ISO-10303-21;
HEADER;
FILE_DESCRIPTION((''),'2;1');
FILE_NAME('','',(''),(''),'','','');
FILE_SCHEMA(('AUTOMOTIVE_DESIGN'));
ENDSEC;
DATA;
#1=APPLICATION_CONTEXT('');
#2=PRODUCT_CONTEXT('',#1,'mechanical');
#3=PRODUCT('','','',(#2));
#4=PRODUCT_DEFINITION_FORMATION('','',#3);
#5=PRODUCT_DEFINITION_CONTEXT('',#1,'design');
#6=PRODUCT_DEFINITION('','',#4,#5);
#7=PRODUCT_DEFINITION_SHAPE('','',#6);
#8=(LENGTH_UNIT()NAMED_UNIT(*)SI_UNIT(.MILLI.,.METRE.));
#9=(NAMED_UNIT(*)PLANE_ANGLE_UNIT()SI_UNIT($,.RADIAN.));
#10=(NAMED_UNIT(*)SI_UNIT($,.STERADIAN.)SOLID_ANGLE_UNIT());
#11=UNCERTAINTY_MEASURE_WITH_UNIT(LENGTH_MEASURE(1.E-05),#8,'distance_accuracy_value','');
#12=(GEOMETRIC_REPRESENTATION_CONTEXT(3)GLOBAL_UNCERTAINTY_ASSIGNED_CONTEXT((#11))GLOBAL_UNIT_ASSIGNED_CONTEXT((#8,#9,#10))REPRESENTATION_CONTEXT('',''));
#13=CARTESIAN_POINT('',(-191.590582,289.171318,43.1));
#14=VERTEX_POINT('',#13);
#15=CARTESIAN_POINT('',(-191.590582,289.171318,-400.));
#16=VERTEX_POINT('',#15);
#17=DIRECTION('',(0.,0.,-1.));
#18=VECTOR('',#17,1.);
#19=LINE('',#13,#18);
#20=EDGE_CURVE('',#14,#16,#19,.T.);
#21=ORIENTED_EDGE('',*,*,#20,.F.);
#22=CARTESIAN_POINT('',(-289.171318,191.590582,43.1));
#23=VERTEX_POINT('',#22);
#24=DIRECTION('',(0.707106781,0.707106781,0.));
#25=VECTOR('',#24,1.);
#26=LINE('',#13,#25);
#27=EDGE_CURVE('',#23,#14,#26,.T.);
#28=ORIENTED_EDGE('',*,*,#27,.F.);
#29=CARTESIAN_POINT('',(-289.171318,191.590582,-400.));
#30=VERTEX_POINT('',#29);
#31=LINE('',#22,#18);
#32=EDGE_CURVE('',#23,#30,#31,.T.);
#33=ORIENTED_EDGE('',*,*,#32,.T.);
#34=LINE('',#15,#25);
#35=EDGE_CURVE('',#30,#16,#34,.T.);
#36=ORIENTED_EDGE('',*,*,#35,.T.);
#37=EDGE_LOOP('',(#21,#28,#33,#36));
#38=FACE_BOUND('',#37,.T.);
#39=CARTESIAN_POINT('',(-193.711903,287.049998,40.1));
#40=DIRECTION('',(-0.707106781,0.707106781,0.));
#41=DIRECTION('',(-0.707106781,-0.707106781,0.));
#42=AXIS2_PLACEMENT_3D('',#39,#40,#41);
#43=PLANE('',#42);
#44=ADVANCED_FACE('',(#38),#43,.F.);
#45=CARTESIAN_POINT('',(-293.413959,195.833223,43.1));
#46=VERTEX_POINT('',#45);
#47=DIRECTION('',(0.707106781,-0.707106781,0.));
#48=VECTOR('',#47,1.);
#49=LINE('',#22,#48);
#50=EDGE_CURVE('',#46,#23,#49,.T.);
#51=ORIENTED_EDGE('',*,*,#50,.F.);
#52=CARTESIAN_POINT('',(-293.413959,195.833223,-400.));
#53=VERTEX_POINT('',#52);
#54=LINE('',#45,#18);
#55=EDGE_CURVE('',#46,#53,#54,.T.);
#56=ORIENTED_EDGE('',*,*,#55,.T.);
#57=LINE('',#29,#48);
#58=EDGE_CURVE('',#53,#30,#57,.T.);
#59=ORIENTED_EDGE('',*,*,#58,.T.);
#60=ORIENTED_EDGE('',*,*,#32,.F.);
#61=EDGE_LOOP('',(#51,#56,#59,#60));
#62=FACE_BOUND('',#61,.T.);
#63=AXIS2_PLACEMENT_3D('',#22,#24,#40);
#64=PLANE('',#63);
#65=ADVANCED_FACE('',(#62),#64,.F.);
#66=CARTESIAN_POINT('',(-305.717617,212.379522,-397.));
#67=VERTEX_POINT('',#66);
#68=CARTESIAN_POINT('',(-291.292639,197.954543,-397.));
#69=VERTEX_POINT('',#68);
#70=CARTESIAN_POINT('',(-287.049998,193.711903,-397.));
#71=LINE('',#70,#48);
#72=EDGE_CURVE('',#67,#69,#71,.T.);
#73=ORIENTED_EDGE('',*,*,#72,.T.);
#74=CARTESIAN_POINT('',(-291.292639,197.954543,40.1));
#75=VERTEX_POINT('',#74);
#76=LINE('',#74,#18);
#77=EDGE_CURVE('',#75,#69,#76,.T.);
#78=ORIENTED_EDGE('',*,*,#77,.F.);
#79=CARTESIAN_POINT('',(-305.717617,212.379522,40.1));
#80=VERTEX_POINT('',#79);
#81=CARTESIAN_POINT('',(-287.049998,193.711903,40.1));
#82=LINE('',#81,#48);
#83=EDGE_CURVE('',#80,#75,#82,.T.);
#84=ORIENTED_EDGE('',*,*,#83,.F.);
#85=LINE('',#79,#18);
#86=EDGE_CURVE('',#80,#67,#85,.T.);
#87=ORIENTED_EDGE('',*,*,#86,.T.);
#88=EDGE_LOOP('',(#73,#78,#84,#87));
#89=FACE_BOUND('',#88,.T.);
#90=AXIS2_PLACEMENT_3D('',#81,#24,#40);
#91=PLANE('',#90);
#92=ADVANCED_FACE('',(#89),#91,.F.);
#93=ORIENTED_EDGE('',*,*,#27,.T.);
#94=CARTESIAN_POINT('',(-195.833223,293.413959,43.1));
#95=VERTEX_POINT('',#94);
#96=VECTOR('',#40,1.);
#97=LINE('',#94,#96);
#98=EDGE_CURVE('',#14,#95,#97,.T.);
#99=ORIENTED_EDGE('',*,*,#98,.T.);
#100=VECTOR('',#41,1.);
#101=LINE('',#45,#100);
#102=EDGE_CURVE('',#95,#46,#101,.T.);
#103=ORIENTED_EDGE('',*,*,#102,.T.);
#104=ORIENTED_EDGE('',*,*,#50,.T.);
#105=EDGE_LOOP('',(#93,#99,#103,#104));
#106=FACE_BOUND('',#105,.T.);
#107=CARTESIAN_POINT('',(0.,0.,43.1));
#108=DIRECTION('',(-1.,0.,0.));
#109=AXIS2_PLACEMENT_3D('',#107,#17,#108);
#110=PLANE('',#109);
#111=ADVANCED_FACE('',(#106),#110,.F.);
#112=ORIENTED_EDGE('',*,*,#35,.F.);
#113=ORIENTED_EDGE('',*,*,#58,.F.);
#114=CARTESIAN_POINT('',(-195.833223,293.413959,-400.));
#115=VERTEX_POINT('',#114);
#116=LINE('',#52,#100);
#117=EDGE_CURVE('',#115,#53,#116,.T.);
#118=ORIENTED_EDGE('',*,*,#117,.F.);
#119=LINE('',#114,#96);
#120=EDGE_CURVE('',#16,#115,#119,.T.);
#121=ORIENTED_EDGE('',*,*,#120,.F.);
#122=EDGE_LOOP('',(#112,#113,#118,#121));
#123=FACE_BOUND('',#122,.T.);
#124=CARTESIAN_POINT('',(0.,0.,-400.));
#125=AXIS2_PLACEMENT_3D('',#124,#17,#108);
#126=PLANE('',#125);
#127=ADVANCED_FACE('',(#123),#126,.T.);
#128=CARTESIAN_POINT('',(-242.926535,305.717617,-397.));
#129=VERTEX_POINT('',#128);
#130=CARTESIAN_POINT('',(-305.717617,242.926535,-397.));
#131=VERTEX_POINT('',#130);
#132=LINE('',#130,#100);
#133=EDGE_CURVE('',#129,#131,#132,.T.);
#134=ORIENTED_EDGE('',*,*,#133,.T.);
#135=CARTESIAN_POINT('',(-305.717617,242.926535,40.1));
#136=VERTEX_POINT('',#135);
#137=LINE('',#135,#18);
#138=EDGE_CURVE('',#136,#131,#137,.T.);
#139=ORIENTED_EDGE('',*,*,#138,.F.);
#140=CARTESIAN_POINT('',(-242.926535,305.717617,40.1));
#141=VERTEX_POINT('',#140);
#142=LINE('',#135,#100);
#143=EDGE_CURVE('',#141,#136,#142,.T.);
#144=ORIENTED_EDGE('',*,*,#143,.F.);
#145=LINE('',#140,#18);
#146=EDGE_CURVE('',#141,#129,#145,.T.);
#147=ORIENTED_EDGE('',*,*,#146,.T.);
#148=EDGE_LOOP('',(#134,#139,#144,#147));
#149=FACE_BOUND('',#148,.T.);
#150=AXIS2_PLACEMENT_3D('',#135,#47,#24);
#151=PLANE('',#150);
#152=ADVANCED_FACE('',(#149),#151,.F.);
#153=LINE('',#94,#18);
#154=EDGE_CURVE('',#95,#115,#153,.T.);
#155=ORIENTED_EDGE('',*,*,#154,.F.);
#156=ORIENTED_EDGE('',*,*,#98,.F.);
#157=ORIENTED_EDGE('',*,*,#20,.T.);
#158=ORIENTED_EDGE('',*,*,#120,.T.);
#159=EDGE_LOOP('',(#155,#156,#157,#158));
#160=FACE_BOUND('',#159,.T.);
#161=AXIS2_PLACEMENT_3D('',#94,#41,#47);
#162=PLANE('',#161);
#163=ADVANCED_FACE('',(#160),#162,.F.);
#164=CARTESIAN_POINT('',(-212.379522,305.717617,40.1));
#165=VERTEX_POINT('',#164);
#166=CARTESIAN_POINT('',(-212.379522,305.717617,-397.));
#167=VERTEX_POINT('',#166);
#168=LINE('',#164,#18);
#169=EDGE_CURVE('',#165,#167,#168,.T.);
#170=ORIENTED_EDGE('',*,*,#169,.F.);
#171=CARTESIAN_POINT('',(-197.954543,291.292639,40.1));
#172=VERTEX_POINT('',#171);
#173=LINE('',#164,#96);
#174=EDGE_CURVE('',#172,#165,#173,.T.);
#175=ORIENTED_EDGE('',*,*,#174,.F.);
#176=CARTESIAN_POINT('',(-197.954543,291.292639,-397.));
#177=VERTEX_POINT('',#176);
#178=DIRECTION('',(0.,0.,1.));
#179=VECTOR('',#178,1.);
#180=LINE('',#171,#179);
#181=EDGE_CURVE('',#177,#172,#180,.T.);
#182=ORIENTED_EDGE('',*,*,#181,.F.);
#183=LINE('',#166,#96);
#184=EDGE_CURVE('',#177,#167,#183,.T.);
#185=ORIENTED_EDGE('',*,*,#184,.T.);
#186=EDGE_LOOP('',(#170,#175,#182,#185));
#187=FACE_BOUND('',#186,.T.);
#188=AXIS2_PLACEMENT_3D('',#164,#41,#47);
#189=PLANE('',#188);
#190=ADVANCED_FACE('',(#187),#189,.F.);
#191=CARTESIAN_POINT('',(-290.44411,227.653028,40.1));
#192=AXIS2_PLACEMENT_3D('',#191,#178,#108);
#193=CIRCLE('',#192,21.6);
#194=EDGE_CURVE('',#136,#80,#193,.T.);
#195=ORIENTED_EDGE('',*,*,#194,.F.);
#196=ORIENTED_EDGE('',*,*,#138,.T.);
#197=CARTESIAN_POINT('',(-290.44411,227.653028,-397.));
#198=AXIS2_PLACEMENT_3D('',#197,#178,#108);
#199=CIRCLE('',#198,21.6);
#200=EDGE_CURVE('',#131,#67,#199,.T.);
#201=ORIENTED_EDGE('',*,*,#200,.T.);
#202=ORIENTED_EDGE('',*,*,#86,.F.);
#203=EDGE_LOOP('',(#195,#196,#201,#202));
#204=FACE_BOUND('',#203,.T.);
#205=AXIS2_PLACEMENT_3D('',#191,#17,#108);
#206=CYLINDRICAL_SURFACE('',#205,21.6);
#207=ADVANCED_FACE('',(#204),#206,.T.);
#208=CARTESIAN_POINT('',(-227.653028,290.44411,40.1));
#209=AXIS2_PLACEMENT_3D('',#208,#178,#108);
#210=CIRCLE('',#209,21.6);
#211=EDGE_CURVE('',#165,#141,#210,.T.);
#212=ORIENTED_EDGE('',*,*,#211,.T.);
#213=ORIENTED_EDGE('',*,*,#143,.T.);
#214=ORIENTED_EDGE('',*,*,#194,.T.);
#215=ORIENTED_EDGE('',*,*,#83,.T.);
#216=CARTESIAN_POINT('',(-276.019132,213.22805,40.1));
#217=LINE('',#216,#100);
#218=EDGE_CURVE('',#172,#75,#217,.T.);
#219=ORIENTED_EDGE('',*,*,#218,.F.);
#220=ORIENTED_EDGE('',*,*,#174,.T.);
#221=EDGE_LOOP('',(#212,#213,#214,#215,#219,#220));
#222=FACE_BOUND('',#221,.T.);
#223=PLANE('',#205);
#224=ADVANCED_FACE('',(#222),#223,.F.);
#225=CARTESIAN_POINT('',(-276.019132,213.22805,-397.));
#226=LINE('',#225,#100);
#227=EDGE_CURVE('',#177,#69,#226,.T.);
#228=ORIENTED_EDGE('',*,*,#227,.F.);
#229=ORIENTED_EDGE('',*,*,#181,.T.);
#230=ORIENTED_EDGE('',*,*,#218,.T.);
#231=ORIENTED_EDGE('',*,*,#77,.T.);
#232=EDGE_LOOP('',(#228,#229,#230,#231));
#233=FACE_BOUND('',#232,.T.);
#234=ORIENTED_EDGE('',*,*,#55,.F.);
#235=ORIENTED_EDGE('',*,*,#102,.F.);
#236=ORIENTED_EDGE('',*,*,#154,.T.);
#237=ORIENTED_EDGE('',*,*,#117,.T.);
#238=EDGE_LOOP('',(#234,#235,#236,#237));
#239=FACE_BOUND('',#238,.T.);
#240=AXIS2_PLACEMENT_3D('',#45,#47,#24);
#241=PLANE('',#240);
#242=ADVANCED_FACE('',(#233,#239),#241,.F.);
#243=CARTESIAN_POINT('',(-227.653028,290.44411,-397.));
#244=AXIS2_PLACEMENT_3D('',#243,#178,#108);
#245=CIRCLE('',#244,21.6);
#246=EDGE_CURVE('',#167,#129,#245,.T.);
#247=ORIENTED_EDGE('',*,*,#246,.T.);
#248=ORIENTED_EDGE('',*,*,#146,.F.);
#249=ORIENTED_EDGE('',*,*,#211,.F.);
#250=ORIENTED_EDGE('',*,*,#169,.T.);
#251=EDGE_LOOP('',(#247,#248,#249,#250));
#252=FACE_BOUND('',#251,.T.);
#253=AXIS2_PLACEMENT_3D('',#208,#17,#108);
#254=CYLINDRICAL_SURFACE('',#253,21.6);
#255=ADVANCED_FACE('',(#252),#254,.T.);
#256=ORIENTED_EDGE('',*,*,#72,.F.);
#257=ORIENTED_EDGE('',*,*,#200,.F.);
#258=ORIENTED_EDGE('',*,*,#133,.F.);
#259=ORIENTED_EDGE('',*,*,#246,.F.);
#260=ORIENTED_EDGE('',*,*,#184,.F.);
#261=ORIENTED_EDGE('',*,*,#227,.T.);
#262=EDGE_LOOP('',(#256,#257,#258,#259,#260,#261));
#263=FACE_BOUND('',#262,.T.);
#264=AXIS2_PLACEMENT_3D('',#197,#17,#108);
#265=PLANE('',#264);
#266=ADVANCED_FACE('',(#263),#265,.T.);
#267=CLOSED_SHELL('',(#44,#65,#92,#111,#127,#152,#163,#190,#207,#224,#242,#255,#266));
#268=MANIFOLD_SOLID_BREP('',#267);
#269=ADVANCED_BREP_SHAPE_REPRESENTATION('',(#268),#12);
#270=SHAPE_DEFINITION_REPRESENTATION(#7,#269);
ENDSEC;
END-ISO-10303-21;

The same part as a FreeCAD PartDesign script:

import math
import FreeCAD as App
import Part
import Sketcher

V = App.Vector
Q = App.Units.Quantity


def add_polygon(sketch, points):
    """Adds a closed chain of lines whose ends are joined by coincident constraints."""
    first, n = sketch.GeometryCount, len(points)
    for a, b in zip(points, points[1:] + points[:1]):
        sketch.addGeometry(Part.LineSegment(App.Vector(*a, 0), App.Vector(*b, 0)), False)
    for i in range(n):
        sketch.addConstraint(Sketcher.Constraint("Coincident", first + i, 2, first + (i + 1) % n, 1))

doc = App.newDocument("Part")
body = doc.addObject("PartDesign::Body", "Body")

sketch1 = body.newObject("Sketcher::SketchObject", "Sketch")
sketch1.AttachmentSupport = (doc.getObject("XY_Plane"), [""])
sketch1.MapMode = "FlatFace"
sketch1.AttachmentOffset = App.Placement(V(0, 0, -397), App.Rotation())
sketch1.addGeometry([
    Part.LineSegment(V(-287.049998, 193.711903, 0), V(-193.711903, 287.049998, 0)),
    Part.LineSegment(V(-193.711903, 287.049998, 0), V(-212.379522, 305.717617, 0)),
    Part.ArcOfCircle(Part.Circle(V(-227.653028, 290.44411, 0), V(0, 0, 1), 21.6), math.radians(45), math.radians(135)),
    Part.LineSegment(V(-242.926535, 305.717617, 0), V(-305.717617, 242.926535, 0)),
    Part.ArcOfCircle(Part.Circle(V(-290.44411, 227.653028, 0), V(0, 0, 1), 21.6), math.radians(135), math.radians(225)),
    Part.LineSegment(V(-305.717617, 212.379522, 0), V(-287.049998, 193.711903, 0)),
], False)
sketch1.addConstraint([
    Sketcher.Constraint("Coincident", 0, 2, 1, 1),
    Sketcher.Constraint("Tangent", 1, 2, 2, 1),
    Sketcher.Constraint("Tangent", 2, 2, 3, 1),
    Sketcher.Constraint("Tangent", 3, 2, 4, 1),
    Sketcher.Constraint("Tangent", 4, 2, 5, 1),
    Sketcher.Constraint("Coincident", 5, 2, 0, 1),
    Sketcher.Constraint("Equal", 2, 4),
    Sketcher.Constraint("Perpendicular", 0, 1),
    Sketcher.Constraint("Perpendicular", 1, 3),
    Sketcher.Constraint("Perpendicular", 3, 5),
    Sketcher.Constraint("Horizontal", 1, 2, 2, 2),
    Sketcher.Constraint("Radius", 2, 21.6),
    Sketcher.Constraint("Distance", 0, 132.0),
    Sketcher.Constraint("Distance", 1, 26.4),
    Sketcher.Constraint("DistanceX", 2, 3, -1, 1, 227.653028),
    Sketcher.Constraint("DistanceY", -1, 1, 2, 3, 290.44411),
])
pad1 = body.newObject("PartDesign::Pad", "Pad")
pad1.Profile = sketch1
pad1.Length = 437.1

sketch2 = body.newObject("Sketcher::SketchObject", "Sketch001")
sketch2.AttachmentSupport = (doc.getObject("XY_Plane"), [""])
sketch2.MapMode = "FlatFace"
sketch2.AttachmentOffset = App.Placement(V(0, 0, -400), App.Rotation())
add_polygon(sketch2, [(-289.171318, 191.590582), (-191.590582, 289.171318), (-195.833223, 293.413959), (-293.413959, 195.833223)])
sketch2.addConstraint([
    Sketcher.Constraint("Perpendicular", 0, 1),
    Sketcher.Constraint("Perpendicular", 1, 2),
    Sketcher.Constraint("Perpendicular", 2, 3),
    Sketcher.Constraint("Angle", 0, Q("45 deg")),
    Sketcher.Constraint("Distance", 0, 138.0),
    Sketcher.Constraint("Distance", 1, 6.0),
    Sketcher.Constraint("DistanceY", -1, 1, 0, 2, 289.171318),
    Sketcher.Constraint("DistanceX", 2, 2, -1, 1, 293.413959),
])
pad2 = body.newObject("PartDesign::Pad", "Pad001")
pad2.Profile = sketch2
pad2.Length = 443.1

doc.recompute()
